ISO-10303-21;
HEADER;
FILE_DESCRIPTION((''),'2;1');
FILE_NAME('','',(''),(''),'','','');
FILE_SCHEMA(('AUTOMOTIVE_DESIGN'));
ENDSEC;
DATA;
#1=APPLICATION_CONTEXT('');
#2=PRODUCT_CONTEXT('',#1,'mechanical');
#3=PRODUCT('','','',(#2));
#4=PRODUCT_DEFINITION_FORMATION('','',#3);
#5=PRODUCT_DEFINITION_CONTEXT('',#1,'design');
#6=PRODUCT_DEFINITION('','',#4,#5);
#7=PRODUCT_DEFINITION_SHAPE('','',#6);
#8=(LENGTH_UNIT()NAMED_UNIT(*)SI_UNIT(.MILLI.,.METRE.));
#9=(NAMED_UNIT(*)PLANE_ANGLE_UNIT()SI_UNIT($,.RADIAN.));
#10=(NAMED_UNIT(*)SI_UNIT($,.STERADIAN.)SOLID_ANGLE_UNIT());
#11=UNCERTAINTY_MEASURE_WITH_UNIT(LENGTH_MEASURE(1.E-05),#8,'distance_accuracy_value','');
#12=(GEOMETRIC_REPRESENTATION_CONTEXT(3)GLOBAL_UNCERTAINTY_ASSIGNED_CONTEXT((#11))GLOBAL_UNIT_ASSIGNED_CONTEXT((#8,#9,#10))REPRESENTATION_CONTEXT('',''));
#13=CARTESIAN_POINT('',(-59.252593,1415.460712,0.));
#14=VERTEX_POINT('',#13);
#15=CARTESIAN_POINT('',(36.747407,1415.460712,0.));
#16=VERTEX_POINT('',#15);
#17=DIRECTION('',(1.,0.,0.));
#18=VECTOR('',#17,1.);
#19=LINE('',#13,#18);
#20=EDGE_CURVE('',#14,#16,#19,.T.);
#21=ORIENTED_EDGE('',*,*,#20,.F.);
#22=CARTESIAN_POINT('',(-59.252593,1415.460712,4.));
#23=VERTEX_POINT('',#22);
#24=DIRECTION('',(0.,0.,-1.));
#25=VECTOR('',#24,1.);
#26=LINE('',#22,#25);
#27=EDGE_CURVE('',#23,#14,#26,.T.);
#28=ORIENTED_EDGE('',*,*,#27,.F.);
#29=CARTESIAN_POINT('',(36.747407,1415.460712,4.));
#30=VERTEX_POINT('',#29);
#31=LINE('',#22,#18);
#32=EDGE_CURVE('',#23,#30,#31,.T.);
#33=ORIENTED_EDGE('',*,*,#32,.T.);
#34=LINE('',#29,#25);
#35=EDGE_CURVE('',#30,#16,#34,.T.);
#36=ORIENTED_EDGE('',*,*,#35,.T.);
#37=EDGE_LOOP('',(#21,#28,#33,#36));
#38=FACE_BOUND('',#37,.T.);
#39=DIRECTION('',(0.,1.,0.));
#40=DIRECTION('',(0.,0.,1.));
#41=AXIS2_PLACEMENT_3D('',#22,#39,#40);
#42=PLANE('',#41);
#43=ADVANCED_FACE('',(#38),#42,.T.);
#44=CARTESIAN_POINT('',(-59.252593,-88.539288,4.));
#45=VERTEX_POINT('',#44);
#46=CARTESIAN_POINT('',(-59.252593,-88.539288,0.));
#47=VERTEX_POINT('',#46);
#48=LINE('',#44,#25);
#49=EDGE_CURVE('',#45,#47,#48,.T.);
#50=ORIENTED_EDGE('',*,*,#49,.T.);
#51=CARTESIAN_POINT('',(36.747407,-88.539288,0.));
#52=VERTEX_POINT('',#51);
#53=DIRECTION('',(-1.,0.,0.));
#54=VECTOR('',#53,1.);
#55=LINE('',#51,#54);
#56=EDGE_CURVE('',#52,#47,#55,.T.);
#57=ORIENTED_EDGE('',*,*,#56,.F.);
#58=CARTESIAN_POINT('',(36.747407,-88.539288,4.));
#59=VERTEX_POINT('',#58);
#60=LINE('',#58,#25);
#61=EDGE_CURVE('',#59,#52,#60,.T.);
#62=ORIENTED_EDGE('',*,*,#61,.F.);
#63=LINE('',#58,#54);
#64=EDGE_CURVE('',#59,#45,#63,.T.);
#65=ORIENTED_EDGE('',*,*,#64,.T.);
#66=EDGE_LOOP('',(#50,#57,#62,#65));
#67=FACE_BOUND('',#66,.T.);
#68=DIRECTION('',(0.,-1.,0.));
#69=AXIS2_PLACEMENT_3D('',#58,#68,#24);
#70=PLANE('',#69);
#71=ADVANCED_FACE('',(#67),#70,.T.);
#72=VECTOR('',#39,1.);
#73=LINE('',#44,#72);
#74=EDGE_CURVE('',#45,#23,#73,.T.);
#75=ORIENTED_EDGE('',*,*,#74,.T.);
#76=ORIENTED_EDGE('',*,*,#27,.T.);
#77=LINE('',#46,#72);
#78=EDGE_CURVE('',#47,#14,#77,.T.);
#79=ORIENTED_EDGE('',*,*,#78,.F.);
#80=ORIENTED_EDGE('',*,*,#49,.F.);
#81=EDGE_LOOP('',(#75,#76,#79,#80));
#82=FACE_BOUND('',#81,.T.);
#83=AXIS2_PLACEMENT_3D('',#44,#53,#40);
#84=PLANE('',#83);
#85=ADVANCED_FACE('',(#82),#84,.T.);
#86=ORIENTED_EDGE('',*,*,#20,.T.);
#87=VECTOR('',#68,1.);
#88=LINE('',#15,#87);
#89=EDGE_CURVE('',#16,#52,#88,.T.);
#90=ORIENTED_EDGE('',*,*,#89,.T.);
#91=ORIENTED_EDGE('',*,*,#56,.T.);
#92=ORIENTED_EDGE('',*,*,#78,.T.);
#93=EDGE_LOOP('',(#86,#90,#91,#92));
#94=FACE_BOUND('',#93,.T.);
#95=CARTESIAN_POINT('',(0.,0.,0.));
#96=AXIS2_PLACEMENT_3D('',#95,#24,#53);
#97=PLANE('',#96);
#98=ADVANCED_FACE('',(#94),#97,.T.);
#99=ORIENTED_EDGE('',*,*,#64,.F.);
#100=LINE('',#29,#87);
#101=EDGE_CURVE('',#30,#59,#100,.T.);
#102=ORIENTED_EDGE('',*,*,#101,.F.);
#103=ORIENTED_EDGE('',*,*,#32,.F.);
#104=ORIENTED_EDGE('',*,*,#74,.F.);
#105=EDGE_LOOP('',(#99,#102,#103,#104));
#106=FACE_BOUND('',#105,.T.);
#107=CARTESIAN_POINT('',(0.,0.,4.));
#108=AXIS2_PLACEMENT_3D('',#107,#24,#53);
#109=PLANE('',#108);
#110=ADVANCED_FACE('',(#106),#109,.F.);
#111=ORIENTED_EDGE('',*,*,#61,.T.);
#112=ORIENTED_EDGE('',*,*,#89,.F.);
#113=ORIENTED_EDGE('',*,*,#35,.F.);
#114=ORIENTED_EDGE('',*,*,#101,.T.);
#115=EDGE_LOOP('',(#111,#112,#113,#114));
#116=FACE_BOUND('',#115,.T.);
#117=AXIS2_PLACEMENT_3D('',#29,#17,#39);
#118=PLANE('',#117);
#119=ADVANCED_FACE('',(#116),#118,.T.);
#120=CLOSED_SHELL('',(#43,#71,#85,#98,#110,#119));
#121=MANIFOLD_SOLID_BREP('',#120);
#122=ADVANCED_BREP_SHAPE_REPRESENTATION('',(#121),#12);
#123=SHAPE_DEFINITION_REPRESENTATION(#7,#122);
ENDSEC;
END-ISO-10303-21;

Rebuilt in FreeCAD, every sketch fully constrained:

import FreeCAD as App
import Part
import Sketcher

V = App.Vector
Q = App.Units.Quantity


def add_polygon(sketch, points):
    """Adds a closed chain of lines whose ends are joined by coincident constraints."""
    first, n = sketch.GeometryCount, len(points)
    for a, b in zip(points, points[1:] + points[:1]):
        sketch.addGeometry(Part.LineSegment(App.Vector(*a, 0), App.Vector(*b, 0)), False)
    for i in range(n):
        sketch.addConstraint(Sketcher.Constraint("Coincident", first + i, 2, first + (i + 1) % n, 1))

doc = App.newDocument("Part")
body = doc.addObject("PartDesign::Body", "Body")

# Sketch on XY plane
sketch1 = doc.addObject("Sketcher::SketchObject", "Sketch")
body.addObject(sketch1)
sketch1.AttachmentSupport = (doc.XY_Plane, [""])
sketch1.MapMode = "FlatFace"
add_polygon(sketch1, [(-59.252593, 1415.460712), (-59.252593, -88.539288), (36.747407, -88.539288), (36.747407, 1415.460712)])  # lines 0-3
sketch1.addConstraint(Sketcher.Constraint("Vertical", 0))
sketch1.addConstraint(Sketcher.Constraint("Horizontal", 1))
sketch1.addConstraint(Sketcher.Constraint("Vertical", 2))
sketch1.addConstraint(Sketcher.Constraint("Horizontal", 3))
sketch1.addConstraint(Sketcher.Constraint("DistanceX", 1, 1, 1, 2, Q("96 mm")))
sketch1.addConstraint(Sketcher.Constraint("DistanceY", 0, 2, 0, 1, Q("1504 mm")))
sketch1.addConstraint(Sketcher.Constraint("DistanceX", 0, 2, -1, 1, Q("59.252593 mm")))
sketch1.addConstraint(Sketcher.Constraint("DistanceY", 0, 2, -1, 1, Q("88.539288 mm")))
pad1 = doc.addObject("PartDesign::Pad", "Pad")
body.addObject(pad1)
pad1.Profile = sketch1
pad1.Length = 4

doc.recompute()
